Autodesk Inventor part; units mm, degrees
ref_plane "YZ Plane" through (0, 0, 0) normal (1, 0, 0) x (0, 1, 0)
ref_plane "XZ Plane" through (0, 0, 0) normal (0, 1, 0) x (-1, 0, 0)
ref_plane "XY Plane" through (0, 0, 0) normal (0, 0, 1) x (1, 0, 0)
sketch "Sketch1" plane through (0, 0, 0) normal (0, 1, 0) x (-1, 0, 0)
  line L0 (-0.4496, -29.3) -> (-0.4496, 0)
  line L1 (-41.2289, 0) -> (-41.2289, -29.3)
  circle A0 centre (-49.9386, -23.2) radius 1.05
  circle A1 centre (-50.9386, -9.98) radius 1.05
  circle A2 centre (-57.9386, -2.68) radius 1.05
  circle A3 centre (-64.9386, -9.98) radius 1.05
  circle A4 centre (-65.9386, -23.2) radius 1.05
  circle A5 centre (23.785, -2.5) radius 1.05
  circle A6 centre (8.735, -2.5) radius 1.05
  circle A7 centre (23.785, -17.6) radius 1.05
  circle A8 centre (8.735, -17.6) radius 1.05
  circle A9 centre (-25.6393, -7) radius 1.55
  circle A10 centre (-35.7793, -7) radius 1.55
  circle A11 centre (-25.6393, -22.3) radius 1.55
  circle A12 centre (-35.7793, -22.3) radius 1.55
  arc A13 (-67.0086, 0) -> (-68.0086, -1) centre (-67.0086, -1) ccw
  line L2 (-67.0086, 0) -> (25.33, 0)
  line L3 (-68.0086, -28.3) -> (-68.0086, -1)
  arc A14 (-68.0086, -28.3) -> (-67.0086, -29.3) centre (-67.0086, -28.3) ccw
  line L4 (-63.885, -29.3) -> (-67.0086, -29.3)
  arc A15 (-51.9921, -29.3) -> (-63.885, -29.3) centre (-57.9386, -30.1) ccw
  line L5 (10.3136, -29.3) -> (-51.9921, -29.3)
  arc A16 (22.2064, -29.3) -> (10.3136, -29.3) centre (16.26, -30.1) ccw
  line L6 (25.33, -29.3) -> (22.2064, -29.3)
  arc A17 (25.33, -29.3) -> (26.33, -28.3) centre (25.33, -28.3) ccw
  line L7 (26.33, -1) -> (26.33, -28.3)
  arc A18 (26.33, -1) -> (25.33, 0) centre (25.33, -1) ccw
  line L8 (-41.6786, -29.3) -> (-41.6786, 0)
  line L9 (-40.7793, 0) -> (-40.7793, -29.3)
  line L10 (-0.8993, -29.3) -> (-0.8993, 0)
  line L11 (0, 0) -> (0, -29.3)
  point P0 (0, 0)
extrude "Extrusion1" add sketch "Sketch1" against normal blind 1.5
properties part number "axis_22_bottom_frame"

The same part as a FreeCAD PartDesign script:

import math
import FreeCAD as App
import Part
import Sketcher
Q = App.Units.Quantity

doc = App.newDocument("Part")
body = doc.addObject("PartDesign::Body", "Body")

# Sketch on XZ plane
sketch1 = doc.addObject("Sketcher::SketchObject", "Sketch")
body.addObject(sketch1)
sketch1.AttachmentSupport = (doc.XZ_Plane, [""])
sketch1.MapMode = "FlatFace"
sketch1.addGeometry(Part.ArcOfCircle(Part.Circle(App.Vector(-16.3, -30.1, 0), App.Vector(0, 0, 1), 6), math.radians(8), math.radians(172)), False)
sketch1.addGeometry(Part.LineSegment(App.Vector(-22.2, -29.3, 0), App.Vector(-25.3, -29.3, 0)), False)
sketch1.addGeometry(Part.ArcOfCircle(Part.Circle(App.Vector(-25.3, -28.3, 0), App.Vector(0, 0, 1), 1), math.radians(180), math.radians(270)), False)
sketch1.addGeometry(Part.LineSegment(App.Vector(-26.3, -28.3, 0), App.Vector(-26.3, -1, 0)), False)
sketch1.addGeometry(Part.ArcOfCircle(Part.Circle(App.Vector(-25.3, -1, 0), App.Vector(0, 0, 1), 1), math.radians(90), math.radians(180)), False)
sketch1.addGeometry(Part.LineSegment(App.Vector(-25.3, 0, 0), App.Vector(67, 0, 0)), False)
sketch1.addGeometry(Part.ArcOfCircle(Part.Circle(App.Vector(67, -1, 0), App.Vector(0, 0, 1), 1), math.radians(0), math.radians(90)), False)
sketch1.addGeometry(Part.LineSegment(App.Vector(68, -1, 0), App.Vector(68, -28.3, 0)), False)
sketch1.addGeometry(Part.ArcOfCircle(Part.Circle(App.Vector(67, -28.3, 0), App.Vector(0, 0, 1), 1), math.radians(-90), math.radians(0)), False)
sketch1.addGeometry(Part.LineSegment(App.Vector(67, -29.3, 0), App.Vector(63.9, -29.3, 0)), False)
sketch1.addGeometry(Part.ArcOfCircle(Part.Circle(App.Vector(57.9, -30.1, 0), App.Vector(0, 0, 1), 6), math.radians(8), math.radians(172)), False)
sketch1.addGeometry(Part.LineSegment(App.Vector(52, -29.3, 0), App.Vector(-10.3, -29.3, 0)), False)
sketch1.addGeometry(Part.Circle(App.Vector(25.6, -7, 0), App.Vector(0, 0, 1), 1.6), False)
sketch1.addGeometry(Part.Circle(App.Vector(35.8, -22.3, 0), App.Vector(0, 0, 1), 1.6), False)
sketch1.addGeometry(Part.Circle(App.Vector(25.6, -22.3, 0), App.Vector(0, 0, 1), 1.6), False)
sketch1.addGeometry(Part.Circle(App.Vector(35.8, -7, 0), App.Vector(0, 0, 1), 1.6), False)
sketch1.addGeometry(Part.Circle(App.Vector(-23.8, -2.5, 0), App.Vector(0, 0, 1), 1.1), False)
sketch1.addGeometry(Part.Circle(App.Vector(-8.7, -17.6, 0), App.Vector(0, 0, 1), 1.1), False)
sketch1.addGeometry(Part.Circle(App.Vector(-23.8, -17.6, 0), App.Vector(0, 0, 1), 1.1), False)
sketch1.addGeometry(Part.Circle(App.Vector(-8.7, -2.5, 0), App.Vector(0, 0, 1), 1.1), False)
sketch1.addGeometry(Part.Circle(App.Vector(57.9, -2.7, 0), App.Vector(0, 0, 1), 1.1), False)
sketch1.addGeometry(Part.Circle(App.Vector(65.9, -23.2, 0), App.Vector(0, 0, 1), 1.1), False)
sketch1.addGeometry(Part.Circle(App.Vector(49.9, -23.2, 0), App.Vector(0, 0, 1), 1.1), False)
sketch1.addGeometry(Part.Circle(App.Vector(64.9, -10, 0), App.Vector(0, 0, 1), 1.1), False)
sketch1.addGeometry(Part.Circle(App.Vector(50.9, -10, 0), App.Vector(0, 0, 1), 1.1), False)
sketch1.addConstraint(Sketcher.Constraint("Coincident", 0, 2, 1, 1))
sketch1.addConstraint(Sketcher.Constraint("Tangent", 1, 2, 2, 2))
sketch1.addConstraint(Sketcher.Constraint("Tangent", 2, 1, 3, 1))
sketch1.addConstraint(Sketcher.Constraint("Tangent", 3, 2, 4, 2))
sketch1.addConstraint(Sketcher.Constraint("Tangent", 4, 1, 5, 1))
sketch1.addConstraint(Sketcher.Constraint("Tangent", 5, 2, 6, 2))
sketch1.addConstraint(Sketcher.Constraint("Tangent", 6, 1, 7, 1))
sketch1.addConstraint(Sketcher.Constraint("Tangent", 7, 2, 8, 2))
sketch1.addConstraint(Sketcher.Constraint("Tangent", 8, 1, 9, 1))
sketch1.addConstraint(Sketcher.Constraint("Coincident", 9, 2, 10, 1))
sketch1.addConstraint(Sketcher.Constraint("Coincident", 10, 2, 11, 1))
sketch1.addConstraint(Sketcher.Constraint("Coincident", 11, 2, 0, 1))
sketch1.addConstraint(Sketcher.Constraint("Horizontal", 1))
sketch1.addConstraint(Sketcher.Constraint("Vertical", 3))
sketch1.addConstraint(Sketcher.Constraint("Horizontal", 5))
sketch1.addConstraint(Sketcher.Constraint("Vertical", 7))
sketch1.addConstraint(Sketcher.Constraint("Horizontal", 9))
sketch1.addConstraint(Sketcher.Constraint("Horizontal", 11))
sketch1.addConstraint(Sketcher.Constraint("Equal", 2, 4))
sketch1.addConstraint(Sketcher.Constraint("Equal", 4, 6))
sketch1.addConstraint(Sketcher.Constraint("Equal", 6, 8))
sketch1.addConstraint(Sketcher.Constraint("Equal", 0, 10))
sketch1.addConstraint(Sketcher.Constraint("Equal", 12, 13))
sketch1.addConstraint(Sketcher.Constraint("Equal", 13, 14))
sketch1.addConstraint(Sketcher.Constraint("Equal", 14, 15))
sketch1.addConstraint(Sketcher.Constraint("Equal", 16, 17))
sketch1.addConstraint(Sketcher.Constraint("Equal", 17, 18))
sketch1.addConstraint(Sketcher.Constraint("Equal", 18, 19))
sketch1.addConstraint(Sketcher.Constraint("Equal", 19, 20))
sketch1.addConstraint(Sketcher.Constraint("Equal", 20, 21))
sketch1.addConstraint(Sketcher.Constraint("Equal", 21, 22))
sketch1.addConstraint(Sketcher.Constraint("Equal", 22, 23))
sketch1.addConstraint(Sketcher.Constraint("Equal", 23, 24))
sketch1.addConstraint(Sketcher.Constraint("PointOnObject", 4, 1, -1))
sketch1.addConstraint(Sketcher.Constraint("Horizontal", 2, 3, 8, 3))
sketch1.addConstraint(Sketcher.Constraint("Horizontal", 0, 3, 10, 3))
sketch1.addConstraint(Sketcher.Constraint("Horizontal", 13, 3, 14, 3))
sketch1.addConstraint(Sketcher.Constraint("Horizontal", 12, 3, 15, 3))
sketch1.addConstraint(Sketcher.Constraint("Horizontal", 17, 3, 18, 3))
sketch1.addConstraint(Sketcher.Constraint("Horizontal", 16, 3, 19, 3))
sketch1.addConstraint(Sketcher.Constraint("Horizontal", 21, 3, 22, 3))
sketch1.addConstraint(Sketcher.Constraint("Horizontal", 23, 3, 24, 3))
sketch1.addConstraint(Sketcher.Constraint("Horizontal", 9, 2, 10, 2))
sketch1.addConstraint(Sketcher.Constraint("Vertical", 12, 3, 14, 3))
sketch1.addConstraint(Sketcher.Constraint("Vertical", 13, 3, 15, 3))
sketch1.addConstraint(Sketcher.Constraint("Vertical", 16, 3, 18, 3))
sketch1.addConstraint(Sketcher.Constraint("Vertical", 17, 3, 19, 3))
sketch1.addConstraint(Sketcher.Constraint("Vertical", 10, 3, 20, 3))
sketch1.addConstraint(Sketcher.Constraint("Equal", 1, 9))
sketch1.addConstraint(Sketcher.Constraint("Radius", 0, Q("6 mm")))
sketch1.addConstraint(Sketcher.Constraint("Radius", 2, Q("1 mm")))
sketch1.addConstraint(Sketcher.Constraint("Diameter", 12, Q("3.1 mm")))
sketch1.addConstraint(Sketcher.Constraint("Diameter", 16, Q("2.1 mm")))
sketch1.addConstraint(Sketcher.Constraint("DistanceY", 3, 1, 3, 2, Q("27.3 mm")))
sketch1.addConstraint(Sketcher.Constraint("DistanceY", 12, 3, -1, 1, Q("7 mm")))
sketch1.addConstraint(Sketcher.Constraint("DistanceY", 8, 3, 13, 3, Q("6 mm")))
sketch1.addConstraint(Sketcher.Constraint("DistanceX", 10, 3, 21, 3, Q("8 mm")))
sketch1.addConstraint(Sketcher.Constraint("DistanceX", 22, 3, 10, 3, Q("8 mm")))
sketch1.addConstraint(Sketcher.Constraint("DistanceX", 20, 3, 23, 3, Q("7 mm")))
sketch1.addConstraint(Sketcher.Constraint("DistanceX", 24, 3, 20, 3, Q("7 mm")))
sketch1.addConstraint(Sketcher.Constraint("DistanceY", 0, 3, -1, 1, Q("30.1 mm")))
sketch1.addConstraint(Sketcher.Constraint("DistanceY", 16, 3, -1, 1, Q("2.5 mm")))
sketch1.addConstraint(Sketcher.Constraint("DistanceY", 17, 3, -1, 1, Q("17.6 mm")))
sketch1.addConstraint(Sketcher.Constraint("DistanceY", 21, 3, -1, 1, Q("23.2 mm")))
sketch1.addConstraint(Sketcher.Constraint("DistanceY", 23, 3, 20, 3, Q("7.3 mm")))
sketch1.addConstraint(Sketcher.Constraint("DistanceX", 0, 3, -1, 1, Q("16.26 mm")))
sketch1.addConstraint(Sketcher.Constraint("DistanceX", 2, 3, -1, 1, Q("25.33 mm")))
sketch1.addConstraint(Sketcher.Constraint("DistanceY", 20, 3, -1, 1, Q("2.68 mm")))
sketch1.addConstraint(Sketcher.Constraint("DistanceX", 12, 3, 13, 3, Q("10.14 mm")))
sketch1.addConstraint(Sketcher.Constraint("DistanceX", 16, 3, 17, 3, Q("15.05 mm")))
sketch1.addConstraint(Sketcher.Constraint("DistanceX", 5, 1, 5, 2, Q("92.3386 mm")))
sketch1.addConstraint(Sketcher.Constraint("DistanceX", 16, 3, -1, 1, Q("23.785 mm")))
sketch1.addConstraint(Sketcher.Constraint("DistanceX", -1, 1, 12, 3, Q("25.6393 mm")))
pad1 = doc.addObject("PartDesign::Pad", "Pad")
body.addObject(pad1)
pad1.Profile = sketch1
pad1.Length = 1.5

doc.recompute()
